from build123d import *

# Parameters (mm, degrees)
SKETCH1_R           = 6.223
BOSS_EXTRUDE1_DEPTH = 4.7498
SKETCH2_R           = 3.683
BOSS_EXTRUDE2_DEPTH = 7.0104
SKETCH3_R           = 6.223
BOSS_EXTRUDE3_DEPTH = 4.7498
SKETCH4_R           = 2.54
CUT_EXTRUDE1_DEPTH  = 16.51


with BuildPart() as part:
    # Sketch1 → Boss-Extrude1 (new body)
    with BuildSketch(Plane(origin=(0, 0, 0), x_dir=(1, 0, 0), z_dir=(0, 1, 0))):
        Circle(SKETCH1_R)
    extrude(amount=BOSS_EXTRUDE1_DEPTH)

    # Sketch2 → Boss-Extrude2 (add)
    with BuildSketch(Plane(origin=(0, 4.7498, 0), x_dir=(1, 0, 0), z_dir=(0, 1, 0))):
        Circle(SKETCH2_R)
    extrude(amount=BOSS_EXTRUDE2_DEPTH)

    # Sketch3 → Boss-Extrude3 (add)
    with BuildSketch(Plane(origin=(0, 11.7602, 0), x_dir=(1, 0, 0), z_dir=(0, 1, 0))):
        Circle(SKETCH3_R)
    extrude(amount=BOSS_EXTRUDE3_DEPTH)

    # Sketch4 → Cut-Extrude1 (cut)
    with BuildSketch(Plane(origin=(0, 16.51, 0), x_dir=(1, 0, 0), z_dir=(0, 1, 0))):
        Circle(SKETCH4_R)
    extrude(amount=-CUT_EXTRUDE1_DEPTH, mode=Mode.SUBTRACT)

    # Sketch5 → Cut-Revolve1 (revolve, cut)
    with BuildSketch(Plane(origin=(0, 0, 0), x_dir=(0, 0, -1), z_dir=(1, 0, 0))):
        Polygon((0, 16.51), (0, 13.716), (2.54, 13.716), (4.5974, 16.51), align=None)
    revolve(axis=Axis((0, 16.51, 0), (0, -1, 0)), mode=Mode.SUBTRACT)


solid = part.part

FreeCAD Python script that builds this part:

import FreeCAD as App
import Part
import Sketcher

V = App.Vector
Q = App.Units.Quantity

doc = App.newDocument("Part")
body = doc.addObject("PartDesign::Body", "Body")

# Sketch on XZ plane
sketch1 = body.newObject("Sketcher::SketchObject", "Sketch")
sketch1.AttachmentSupport = (doc.getObject("XZ_Plane"), [""])
sketch1.MapMode = "FlatFace"
sketch1.addGeometry(Part.Circle(V(0, 0, 0), V(0, 0, 1), 6.223), False)
sketch1.addConstraint([
    Sketcher.Constraint("Coincident", 0, 3, -1, 1),
    Sketcher.Constraint("Diameter", 0, Q("0.49 in")),
])
pad1 = body.newObject("PartDesign::Pad", "Pad")
pad1.Profile = sketch1
pad1.Length = Q("0.187 in")
pad1.Reversed = True

# Sketch on XZ plane
sketch2 = body.newObject("Sketcher::SketchObject", "Sketch001")
sketch2.AttachmentSupport = (doc.getObject("XZ_Plane"), [""])
sketch2.MapMode = "FlatFace"
sketch2.AttachmentOffset = App.Placement(V(0, 0, -0.187 * 25.4), App.Rotation())
sketch2.addGeometry(Part.Circle(V(0, 0, 0), V(0, 0, 1), 3.683), False)
sketch2.addConstraint([
    Sketcher.Constraint("Coincident", 0, 3, -1, 1),
    Sketcher.Constraint("Diameter", 0, Q("0.29 in")),
])
pad2 = body.newObject("PartDesign::Pad", "Pad001")
pad2.Profile = sketch2
pad2.Length = Q("0.276 in")
pad2.Reversed = True

# Sketch on XZ plane
sketch3 = body.newObject("Sketcher::SketchObject", "Sketch002")
sketch3.AttachmentSupport = (doc.getObject("XZ_Plane"), [""])
sketch3.MapMode = "FlatFace"
sketch3.AttachmentOffset = App.Placement(V(0, 0, -0.463 * 25.4), App.Rotation())
sketch3.addGeometry(Part.Circle(V(0, 0, 0), V(0, 0, 1), 6.223), False)
sketch3.addConstraint([
    Sketcher.Constraint("Coincident", 0, 3, -1, 1),
    Sketcher.Constraint("Diameter", 0, Q("0.49 in")),
])
pad3 = body.newObject("PartDesign::Pad", "Pad002")
pad3.Profile = sketch3
pad3.Length = Q("0.187 in")
pad3.Reversed = True

# Sketch on XZ plane
sketch4 = body.newObject("Sketcher::SketchObject", "Sketch003")
sketch4.AttachmentSupport = (doc.getObject("XZ_Plane"), [""])
sketch4.MapMode = "FlatFace"
sketch4.AttachmentOffset = App.Placement(V(0, 0, -0.65 * 25.4), App.Rotation())
sketch4.addGeometry(Part.Circle(V(0, 0, 0), V(0, 0, 1), 2.54), False)
sketch4.addConstraint([
    Sketcher.Constraint("Coincident", 0, 3, -1, 1),
    Sketcher.Constraint("Diameter", 0, Q("0.2 in")),
])
pocket1 = body.newObject("PartDesign::Pocket", "Pocket")
pocket1.Profile = sketch4
pocket1.Length = Q("0.65 in")
pocket1.Reversed = True

# Sketch on YZ plane
sketch5 = body.newObject("Sketcher::SketchObject", "Sketch004")
sketch5.AttachmentSupport = (doc.getObject("YZ_Plane"), [""])
sketch5.MapMode = "FlatFace"
sketch5.addGeometry([
    Part.LineSegment(V(16.51, 0, 0), V(13.716, 0, 0)),
    Part.LineSegment(V(13.716, 0, 0), V(13.716, -2.54, 0)),
    Part.LineSegment(V(13.716, -2.54, 0), V(16.51, -4.5974, 0)),
    Part.LineSegment(V(16.51, -4.5974, 0), V(16.51, 0, 0)),
], False)
sketch5.addConstraint([
    Sketcher.Constraint("Coincident", 0, 2, 1, 1),
    Sketcher.Constraint("Coincident", 1, 2, 2, 1),
    Sketcher.Constraint("Coincident", 2, 2, 3, 1),
    Sketcher.Constraint("Coincident", 3, 2, 0, 1),
    Sketcher.Constraint("Horizontal", 0),
    Sketcher.Constraint("Vertical", 1),
    Sketcher.Constraint("Vertical", 3),
    Sketcher.Constraint("PointOnObject", 0, 2, -1),
    Sketcher.Constraint("DistanceY", 1, 2, 1, 1, Q("0.1 in")),
    Sketcher.Constraint("DistanceX", 0, 2, 0, 1, Q("0.11 in")),
    Sketcher.Constraint("DistanceY", 3, 1, 3, 2, Q("0.181 in")),
    Sketcher.Constraint("DistanceX", -1, 1, 0, 2, Q("0.54 in")),
])
groove = body.newObject("PartDesign::Groove", "Groove")
groove.Profile = sketch5
groove.ReferenceAxis = (sketch5, ["H_Axis"])
groove.Angle = 360

doc.recompute()
